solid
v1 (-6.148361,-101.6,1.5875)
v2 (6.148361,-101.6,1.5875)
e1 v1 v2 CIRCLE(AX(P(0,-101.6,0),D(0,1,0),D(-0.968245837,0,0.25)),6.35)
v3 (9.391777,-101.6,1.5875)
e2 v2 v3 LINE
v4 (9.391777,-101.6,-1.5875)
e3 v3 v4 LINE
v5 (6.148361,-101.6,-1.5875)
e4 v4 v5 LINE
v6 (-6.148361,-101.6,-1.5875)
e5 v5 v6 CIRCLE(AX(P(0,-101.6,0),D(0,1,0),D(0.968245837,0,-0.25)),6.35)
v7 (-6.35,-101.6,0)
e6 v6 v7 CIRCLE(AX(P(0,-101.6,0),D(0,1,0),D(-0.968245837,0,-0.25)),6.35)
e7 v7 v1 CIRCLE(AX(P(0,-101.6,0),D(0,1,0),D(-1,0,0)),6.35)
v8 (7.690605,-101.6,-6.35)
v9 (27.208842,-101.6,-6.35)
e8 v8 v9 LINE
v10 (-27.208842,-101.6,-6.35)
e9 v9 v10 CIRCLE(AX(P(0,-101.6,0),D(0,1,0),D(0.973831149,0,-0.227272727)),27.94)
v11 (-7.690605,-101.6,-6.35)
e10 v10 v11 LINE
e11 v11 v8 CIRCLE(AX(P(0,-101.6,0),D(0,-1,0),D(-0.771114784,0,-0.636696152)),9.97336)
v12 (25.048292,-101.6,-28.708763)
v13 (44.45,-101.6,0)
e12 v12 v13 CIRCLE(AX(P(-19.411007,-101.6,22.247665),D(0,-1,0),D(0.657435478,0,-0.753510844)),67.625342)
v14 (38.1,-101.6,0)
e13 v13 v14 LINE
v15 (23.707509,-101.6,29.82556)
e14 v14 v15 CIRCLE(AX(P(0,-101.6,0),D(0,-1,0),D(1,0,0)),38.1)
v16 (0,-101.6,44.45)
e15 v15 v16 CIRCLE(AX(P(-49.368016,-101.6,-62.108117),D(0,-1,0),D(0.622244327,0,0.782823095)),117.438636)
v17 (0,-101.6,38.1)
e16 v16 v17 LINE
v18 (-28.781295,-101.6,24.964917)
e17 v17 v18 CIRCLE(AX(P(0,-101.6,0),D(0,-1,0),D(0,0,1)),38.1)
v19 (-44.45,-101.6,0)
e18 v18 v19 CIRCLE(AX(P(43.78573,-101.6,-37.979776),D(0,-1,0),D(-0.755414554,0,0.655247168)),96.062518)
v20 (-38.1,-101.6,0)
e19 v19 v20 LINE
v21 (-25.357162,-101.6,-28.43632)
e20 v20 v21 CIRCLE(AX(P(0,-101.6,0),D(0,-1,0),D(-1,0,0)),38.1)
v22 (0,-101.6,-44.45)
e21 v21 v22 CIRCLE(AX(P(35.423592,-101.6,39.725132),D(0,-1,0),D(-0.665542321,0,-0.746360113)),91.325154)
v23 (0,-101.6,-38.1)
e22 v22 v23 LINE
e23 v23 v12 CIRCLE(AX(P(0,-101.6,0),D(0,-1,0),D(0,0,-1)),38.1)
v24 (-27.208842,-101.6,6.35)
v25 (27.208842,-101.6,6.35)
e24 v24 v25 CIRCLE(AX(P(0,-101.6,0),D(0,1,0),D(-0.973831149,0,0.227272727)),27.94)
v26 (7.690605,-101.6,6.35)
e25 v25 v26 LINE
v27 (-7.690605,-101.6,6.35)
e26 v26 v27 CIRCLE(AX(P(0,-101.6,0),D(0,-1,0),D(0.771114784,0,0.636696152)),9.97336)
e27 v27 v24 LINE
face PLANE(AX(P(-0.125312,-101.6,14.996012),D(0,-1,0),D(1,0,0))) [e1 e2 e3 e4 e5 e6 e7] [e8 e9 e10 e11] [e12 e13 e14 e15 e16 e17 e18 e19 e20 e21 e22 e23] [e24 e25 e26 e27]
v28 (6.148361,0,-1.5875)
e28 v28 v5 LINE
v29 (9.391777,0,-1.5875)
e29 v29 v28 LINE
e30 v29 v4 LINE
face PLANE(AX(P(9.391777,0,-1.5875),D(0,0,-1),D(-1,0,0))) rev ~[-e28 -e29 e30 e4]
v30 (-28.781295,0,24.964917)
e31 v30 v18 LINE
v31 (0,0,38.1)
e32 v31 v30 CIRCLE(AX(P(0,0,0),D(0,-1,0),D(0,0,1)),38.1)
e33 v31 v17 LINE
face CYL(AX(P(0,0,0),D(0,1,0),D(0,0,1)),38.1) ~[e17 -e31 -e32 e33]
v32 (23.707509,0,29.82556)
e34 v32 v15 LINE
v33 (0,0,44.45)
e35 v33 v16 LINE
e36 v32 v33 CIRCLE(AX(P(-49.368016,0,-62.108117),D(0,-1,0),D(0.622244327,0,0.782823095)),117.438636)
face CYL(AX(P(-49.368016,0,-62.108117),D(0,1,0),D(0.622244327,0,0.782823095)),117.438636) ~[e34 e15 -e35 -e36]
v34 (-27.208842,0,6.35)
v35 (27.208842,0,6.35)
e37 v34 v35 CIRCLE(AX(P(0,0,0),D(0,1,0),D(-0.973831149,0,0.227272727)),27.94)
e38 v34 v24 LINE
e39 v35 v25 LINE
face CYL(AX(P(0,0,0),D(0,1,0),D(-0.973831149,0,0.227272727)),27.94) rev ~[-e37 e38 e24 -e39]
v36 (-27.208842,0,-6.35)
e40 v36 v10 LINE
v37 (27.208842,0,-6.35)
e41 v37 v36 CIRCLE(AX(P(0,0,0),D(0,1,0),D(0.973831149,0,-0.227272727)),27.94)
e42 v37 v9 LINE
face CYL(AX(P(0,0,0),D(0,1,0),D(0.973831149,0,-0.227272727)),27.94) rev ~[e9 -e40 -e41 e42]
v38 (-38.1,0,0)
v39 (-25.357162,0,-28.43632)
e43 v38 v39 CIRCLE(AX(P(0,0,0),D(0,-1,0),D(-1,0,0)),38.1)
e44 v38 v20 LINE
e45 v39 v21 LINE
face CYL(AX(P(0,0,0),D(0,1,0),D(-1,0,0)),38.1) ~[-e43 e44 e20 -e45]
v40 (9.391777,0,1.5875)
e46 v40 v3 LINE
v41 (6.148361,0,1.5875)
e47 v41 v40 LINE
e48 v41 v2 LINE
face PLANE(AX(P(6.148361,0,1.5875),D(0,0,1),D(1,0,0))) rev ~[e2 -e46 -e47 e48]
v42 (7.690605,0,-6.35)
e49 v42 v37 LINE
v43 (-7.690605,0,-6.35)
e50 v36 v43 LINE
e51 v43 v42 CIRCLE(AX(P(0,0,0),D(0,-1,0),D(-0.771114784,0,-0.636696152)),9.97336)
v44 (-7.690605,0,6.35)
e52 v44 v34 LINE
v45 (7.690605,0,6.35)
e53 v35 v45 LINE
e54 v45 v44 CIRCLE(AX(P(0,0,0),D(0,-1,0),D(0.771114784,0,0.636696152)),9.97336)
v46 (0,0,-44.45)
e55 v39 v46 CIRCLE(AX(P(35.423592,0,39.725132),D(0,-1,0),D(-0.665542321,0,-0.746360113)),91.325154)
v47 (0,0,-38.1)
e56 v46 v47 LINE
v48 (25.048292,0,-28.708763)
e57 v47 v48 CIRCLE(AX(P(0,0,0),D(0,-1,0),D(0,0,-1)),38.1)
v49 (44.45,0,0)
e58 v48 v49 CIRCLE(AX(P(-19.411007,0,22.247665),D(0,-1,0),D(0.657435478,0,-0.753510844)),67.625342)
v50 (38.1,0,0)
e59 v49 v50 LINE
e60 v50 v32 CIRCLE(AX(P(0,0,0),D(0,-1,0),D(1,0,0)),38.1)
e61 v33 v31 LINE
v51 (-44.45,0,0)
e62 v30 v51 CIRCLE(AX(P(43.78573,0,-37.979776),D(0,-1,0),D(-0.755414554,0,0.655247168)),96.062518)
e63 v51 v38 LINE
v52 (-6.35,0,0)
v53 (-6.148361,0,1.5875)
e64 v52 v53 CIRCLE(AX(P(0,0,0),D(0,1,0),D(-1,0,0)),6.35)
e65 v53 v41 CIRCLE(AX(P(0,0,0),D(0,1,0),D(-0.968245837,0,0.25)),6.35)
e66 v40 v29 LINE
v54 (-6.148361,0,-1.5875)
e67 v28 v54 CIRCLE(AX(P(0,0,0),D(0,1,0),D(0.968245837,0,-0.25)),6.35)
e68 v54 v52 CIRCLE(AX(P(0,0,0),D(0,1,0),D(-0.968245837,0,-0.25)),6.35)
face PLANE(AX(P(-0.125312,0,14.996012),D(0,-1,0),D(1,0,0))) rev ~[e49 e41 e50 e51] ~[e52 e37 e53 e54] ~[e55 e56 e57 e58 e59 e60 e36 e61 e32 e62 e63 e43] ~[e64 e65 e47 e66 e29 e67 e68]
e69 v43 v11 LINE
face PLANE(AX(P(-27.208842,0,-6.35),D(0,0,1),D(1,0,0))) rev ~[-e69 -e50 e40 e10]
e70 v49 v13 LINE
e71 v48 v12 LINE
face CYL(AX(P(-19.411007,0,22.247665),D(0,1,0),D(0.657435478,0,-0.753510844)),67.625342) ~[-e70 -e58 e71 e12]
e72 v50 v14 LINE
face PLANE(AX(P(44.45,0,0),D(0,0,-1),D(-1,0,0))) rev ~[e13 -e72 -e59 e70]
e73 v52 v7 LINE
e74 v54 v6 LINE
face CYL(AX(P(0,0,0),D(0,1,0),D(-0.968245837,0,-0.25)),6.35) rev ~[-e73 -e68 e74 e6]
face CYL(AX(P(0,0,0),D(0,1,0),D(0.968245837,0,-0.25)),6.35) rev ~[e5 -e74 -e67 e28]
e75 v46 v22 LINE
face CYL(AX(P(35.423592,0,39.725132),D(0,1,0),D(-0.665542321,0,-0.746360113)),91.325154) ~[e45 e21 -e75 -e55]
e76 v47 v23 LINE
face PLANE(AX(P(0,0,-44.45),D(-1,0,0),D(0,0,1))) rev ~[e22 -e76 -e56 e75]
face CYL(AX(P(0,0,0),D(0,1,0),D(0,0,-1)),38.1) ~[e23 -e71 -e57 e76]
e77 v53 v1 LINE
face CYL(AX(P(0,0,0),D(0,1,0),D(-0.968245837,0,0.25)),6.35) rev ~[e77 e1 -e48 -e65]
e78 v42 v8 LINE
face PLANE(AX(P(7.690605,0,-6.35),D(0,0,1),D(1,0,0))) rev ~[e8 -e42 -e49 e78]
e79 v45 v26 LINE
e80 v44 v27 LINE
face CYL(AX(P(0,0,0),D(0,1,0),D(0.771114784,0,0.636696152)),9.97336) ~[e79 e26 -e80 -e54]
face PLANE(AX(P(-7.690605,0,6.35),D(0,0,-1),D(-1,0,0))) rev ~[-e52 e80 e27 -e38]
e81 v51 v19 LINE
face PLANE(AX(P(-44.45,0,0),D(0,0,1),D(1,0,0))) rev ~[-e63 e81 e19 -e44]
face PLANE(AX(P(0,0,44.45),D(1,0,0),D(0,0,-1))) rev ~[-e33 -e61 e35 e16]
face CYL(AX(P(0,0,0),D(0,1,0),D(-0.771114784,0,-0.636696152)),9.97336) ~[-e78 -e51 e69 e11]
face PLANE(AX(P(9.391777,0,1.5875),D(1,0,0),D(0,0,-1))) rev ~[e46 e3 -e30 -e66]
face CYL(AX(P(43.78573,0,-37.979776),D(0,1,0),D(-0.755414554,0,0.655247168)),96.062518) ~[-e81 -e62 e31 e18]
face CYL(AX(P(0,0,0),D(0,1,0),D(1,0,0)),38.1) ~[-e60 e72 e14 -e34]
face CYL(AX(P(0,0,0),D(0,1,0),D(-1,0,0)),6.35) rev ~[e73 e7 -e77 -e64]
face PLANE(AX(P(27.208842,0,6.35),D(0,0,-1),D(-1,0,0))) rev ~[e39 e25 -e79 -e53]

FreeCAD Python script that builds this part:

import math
import FreeCAD as App
import Part
import Sketcher
from FreeCAD import Vector
Q = App.Units.Quantity

doc = App.newDocument("Part")
params = doc.addObject("Spreadsheet::Sheet", "Params")
for row, (alias, value) in enumerate([
    ("sketch1_radius", "1.5 in"),
    ("sketch1_radius2", "1.1 in"),
    ("sketch1_radius3", "0.25 in"),
    ("sketch1_width", "0.25 in"),
    ("sketch1_height", "0.125 in"),
    ("pad1_length", "4 in"),
], start=1):
    params.set(f"A{row}", alias)
    params.set(f"B{row}", "=" + value)
    params.setAlias(f"B{row}", alias)

body = doc.addObject("PartDesign::Body", "Body")

# Sketch on XZ plane
sketch1 = body.newObject("Sketcher::SketchObject", "Sketch")
sketch1.AttachmentSupport = (doc.getObject("XZ_Plane"), [""])
sketch1.MapMode = "FlatFace"
sketch1.addGeometry([
    Part.ArcOfCircle(Part.Circle(Vector(0, 0, 0), Vector(0, 0, 1), 38.1), math.radians(0), math.radians(52)),  # 0
    Part.ArcOfCircle(Part.Circle(Vector(-49.4, -62.1, 0), Vector(0, 0, 1), 117.4), math.radians(51.52), math.radians(65.14)),  # 1
    Part.LineSegment(Vector(0, 44.5, 0), Vector(0, 38.1, 0)),  # 2
    Part.ArcOfCircle(Part.Circle(Vector(0, 0, 0), Vector(0, 0, 1), 38.1), math.radians(90), math.radians(139)),  # 3
    Part.ArcOfCircle(Part.Circle(Vector(43.8, -38, 0), Vector(0, 0, 1), 96.1), math.radians(139.06), math.radians(156.71)),  # 4
    Part.LineSegment(Vector(-44.5, 0, 0), Vector(-38.1, 0, 0)),  # 5
    Part.ArcOfCircle(Part.Circle(Vector(0, 0, 0), Vector(0, 0, 1), 38.1), math.radians(180), math.radians(228)),  # 6
    Part.ArcOfCircle(Part.Circle(Vector(35.4, 39.7, 0), Vector(0, 0, 1), 91.3), math.radians(-131.72), math.radians(-112.82)),  # 7
    Part.LineSegment(Vector(0, -44.5, 0), Vector(0, -38.1, 0)),  # 8
    Part.ArcOfCircle(Part.Circle(Vector(0, 0, 0), Vector(0, 0, 1), 38.1), math.radians(-90), math.radians(-49)),  # 9
    Part.ArcOfCircle(Part.Circle(Vector(-19.4, 22.2, 0), Vector(0, 0, 1), 67.6), math.radians(-49), math.radians(-19)),  # 10
    Part.LineSegment(Vector(44.5, 0, 0), Vector(38.1, 0, 0)),  # 11
    Part.LineSegment(Vector(-7.7, 6.3, 0), Vector(-27.2, 6.3, 0)),  # 12
    Part.ArcOfCircle(Part.Circle(Vector(0, 0, 0), Vector(0, 0, 1), 27.9), math.radians(13), math.radians(167)),  # 13
    Part.LineSegment(Vector(27.2, 6.3, 0), Vector(7.7, 6.3, 0)),  # 14
    Part.ArcOfCircle(Part.Circle(Vector(0, 0, 0), Vector(0, 0, 1), 10), math.radians(40), math.radians(140)),  # 15
    Part.LineSegment(Vector(9.4, -1.6, 0), Vector(6.1, -1.6, 0)),  # 16
    Part.ArcOfCircle(Part.Circle(Vector(0, 0, 0), Vector(0, 0, 1), 6.3), math.radians(-166), math.radians(-14)),  # 17
    Part.ArcOfCircle(Part.Circle(Vector(0, 0, 0), Vector(0, 0, 1), 6.3), math.radians(180), math.radians(194.48)),  # 18
    Part.ArcOfCircle(Part.Circle(Vector(0, 0, 0), Vector(0, 0, 1), 6.3), math.radians(165.52), math.radians(180)),  # 19
    Part.ArcOfCircle(Part.Circle(Vector(0, 0, 0), Vector(0, 0, 1), 6.3), math.radians(14), math.radians(166)),  # 20
    Part.LineSegment(Vector(6.1, 1.6, 0), Vector(9.4, 1.6, 0)),  # 21
    Part.LineSegment(Vector(9.4, 1.6, 0), Vector(9.4, -1.6, 0)),  # 22
    Part.LineSegment(Vector(7.7, -6.3, 0), Vector(27.2, -6.3, 0)),  # 23
    Part.ArcOfCircle(Part.Circle(Vector(0, 0, 0), Vector(0, 0, 1), 27.9), math.radians(-167), math.radians(-13)),  # 24
    Part.LineSegment(Vector(-27.2, -6.3, 0), Vector(-7.7, -6.3, 0)),  # 25
    Part.ArcOfCircle(Part.Circle(Vector(0, 0, 0), Vector(0, 0, 1), 10), math.radians(-140), math.radians(-40)),  # 26
], False)
sketch1.addConstraint([
    Sketcher.Constraint("Tangent", 0, 2, 1, 1),
    Sketcher.Constraint("Coincident", 1, 2, 2, 1),
    Sketcher.Constraint("Coincident", 2, 2, 3, 1),
    Sketcher.Constraint("Tangent", 3, 2, 4, 1),
    Sketcher.Constraint("Coincident", 4, 2, 5, 1),
    Sketcher.Constraint("Coincident", 5, 2, 6, 1),
    Sketcher.Constraint("Tangent", 6, 2, 7, 1),
    Sketcher.Constraint("Coincident", 7, 2, 8, 1),
    Sketcher.Constraint("Coincident", 8, 2, 9, 1),
    Sketcher.Constraint("Tangent", 9, 2, 10, 1),
    Sketcher.Constraint("Coincident", 10, 2, 11, 1),
    Sketcher.Constraint("Coincident", 11, 2, 0, 1),
    Sketcher.Constraint("Coincident", 12, 2, 13, 2),
    Sketcher.Constraint("Coincident", 13, 1, 14, 1),
    Sketcher.Constraint("Coincident", 14, 2, 15, 1),
    Sketcher.Constraint("Coincident", 15, 2, 12, 1),
    Sketcher.Constraint("Coincident", 16, 2, 17, 2),
    Sketcher.Constraint("Tangent", 17, 1, 18, 2),
    Sketcher.Constraint("Tangent", 18, 1, 19, 2),
    Sketcher.Constraint("Tangent", 19, 1, 20, 2),
    Sketcher.Constraint("Coincident", 20, 1, 21, 1),
    Sketcher.Constraint("Coincident", 21, 2, 22, 1),
    Sketcher.Constraint("Coincident", 22, 2, 16, 1),
    Sketcher.Constraint("Coincident", 23, 2, 24, 2),
    Sketcher.Constraint("Coincident", 24, 1, 25, 1),
    Sketcher.Constraint("Coincident", 25, 2, 26, 1),
    Sketcher.Constraint("Coincident", 26, 2, 23, 1),
    Sketcher.Constraint("Vertical", 2),
    Sketcher.Constraint("Horizontal", 5),
    Sketcher.Constraint("Vertical", 8),
    Sketcher.Constraint("Horizontal", 11),
    Sketcher.Constraint("Horizontal", 12),
    Sketcher.Constraint("Horizontal", 14),
    Sketcher.Constraint("Horizontal", 16),
    Sketcher.Constraint("Horizontal", 21),
    Sketcher.Constraint("Vertical", 22),
    Sketcher.Constraint("Horizontal", 23),
    Sketcher.Constraint("Horizontal", 25),
    Sketcher.Constraint("Coincident", 0, 3, -1, 1),
    Sketcher.Constraint("Coincident", 3, 3, -1, 1),
    Sketcher.Constraint("Coincident", 6, 3, -1, 1),
    Sketcher.Constraint("Coincident", 9, 3, -1, 1),
    Sketcher.Constraint("Coincident", 13, 3, -1, 1),
    Sketcher.Constraint("Coincident", 15, 3, -1, 1),
    Sketcher.Constraint("Coincident", 17, 3, -1, 1),
    Sketcher.Constraint("Coincident", 19, 3, -1, 1),
    Sketcher.Constraint("Coincident", 24, 3, -1, 1),
    Sketcher.Constraint("Coincident", 26, 3, -1, 1),
    Sketcher.Constraint("Equal", 0, 3),
    Sketcher.Constraint("Equal", 3, 6),
    Sketcher.Constraint("Equal", 6, 9),
    Sketcher.Constraint("Equal", 19, 20),
    Sketcher.Constraint("Equal", 13, 24),
    Sketcher.Constraint("Equal", 15, 26),
    Sketcher.Constraint("Symmetric", 1, 2, 7, 2, -1, 1),
    Sketcher.Constraint("Symmetric", 4, 2, 10, 2, -1, 1),
    Sketcher.Constraint("PointOnObject", 1, 2, -2),
    Sketcher.Constraint("PointOnObject", 4, 2, -1),
    Sketcher.Constraint("PointOnObject", 18, 1, -1),
    Sketcher.Constraint("Horizontal", 12, 2, 13, 1),
    Sketcher.Constraint("Horizontal", 16, 2, 17, 1),
    Sketcher.Constraint("Horizontal", 19, 1, 20, 1),
    Sketcher.Constraint("Horizontal", 23, 2, 24, 1),
    Sketcher.Constraint("Vertical", 17, 1, 19, 1),
    Sketcher.Constraint("Vertical", 13, 1, 23, 2),
    Sketcher.Constraint("Equal", 11, 2),
    Sketcher.Constraint("Radius", 0, Q("1.5 in")),
    Sketcher.Constraint("Radius", 13, Q("1.1 in")),
    Sketcher.Constraint("Radius", 17, Q("0.25 in")),
    Sketcher.Constraint("DistanceX", 5, 1, 5, 2, Q("0.25 in")),
    Sketcher.Constraint("DistanceY", 23, 2, 13, 1, Q("0.5 in")),
    Sketcher.Constraint("DistanceY", 22, 2, 22, 1, Q("0.125 in")),
    Sketcher.Constraint("Radius", 10, 67.625342),
    Sketcher.Constraint("Radius", 15, 9.97336),
    Sketcher.Constraint("Radius", 1, 117.438636),
    Sketcher.Constraint("Radius", 4, 96.062518),
    Sketcher.Constraint("Radius", 7, 91.325154),
    Sketcher.Constraint("DistanceX", 16, 2, 16, 1, 3.243416),
])
sketch1.setExpression("Constraints[66]", "Params.sketch1_radius")
sketch1.setExpression("Constraints[67]", "Params.sketch1_radius2")
sketch1.setExpression("Constraints[68]", "Params.sketch1_radius3")
sketch1.setExpression("Constraints[69]", "Params.sketch1_width")
sketch1.setExpression("Constraints[71]", "Params.sketch1_height")
pad1 = body.newObject("PartDesign::Pad", "Pad")
pad1.Profile = sketch1
pad1.setExpression("Length", "Params.pad1_length")

doc.recompute()
